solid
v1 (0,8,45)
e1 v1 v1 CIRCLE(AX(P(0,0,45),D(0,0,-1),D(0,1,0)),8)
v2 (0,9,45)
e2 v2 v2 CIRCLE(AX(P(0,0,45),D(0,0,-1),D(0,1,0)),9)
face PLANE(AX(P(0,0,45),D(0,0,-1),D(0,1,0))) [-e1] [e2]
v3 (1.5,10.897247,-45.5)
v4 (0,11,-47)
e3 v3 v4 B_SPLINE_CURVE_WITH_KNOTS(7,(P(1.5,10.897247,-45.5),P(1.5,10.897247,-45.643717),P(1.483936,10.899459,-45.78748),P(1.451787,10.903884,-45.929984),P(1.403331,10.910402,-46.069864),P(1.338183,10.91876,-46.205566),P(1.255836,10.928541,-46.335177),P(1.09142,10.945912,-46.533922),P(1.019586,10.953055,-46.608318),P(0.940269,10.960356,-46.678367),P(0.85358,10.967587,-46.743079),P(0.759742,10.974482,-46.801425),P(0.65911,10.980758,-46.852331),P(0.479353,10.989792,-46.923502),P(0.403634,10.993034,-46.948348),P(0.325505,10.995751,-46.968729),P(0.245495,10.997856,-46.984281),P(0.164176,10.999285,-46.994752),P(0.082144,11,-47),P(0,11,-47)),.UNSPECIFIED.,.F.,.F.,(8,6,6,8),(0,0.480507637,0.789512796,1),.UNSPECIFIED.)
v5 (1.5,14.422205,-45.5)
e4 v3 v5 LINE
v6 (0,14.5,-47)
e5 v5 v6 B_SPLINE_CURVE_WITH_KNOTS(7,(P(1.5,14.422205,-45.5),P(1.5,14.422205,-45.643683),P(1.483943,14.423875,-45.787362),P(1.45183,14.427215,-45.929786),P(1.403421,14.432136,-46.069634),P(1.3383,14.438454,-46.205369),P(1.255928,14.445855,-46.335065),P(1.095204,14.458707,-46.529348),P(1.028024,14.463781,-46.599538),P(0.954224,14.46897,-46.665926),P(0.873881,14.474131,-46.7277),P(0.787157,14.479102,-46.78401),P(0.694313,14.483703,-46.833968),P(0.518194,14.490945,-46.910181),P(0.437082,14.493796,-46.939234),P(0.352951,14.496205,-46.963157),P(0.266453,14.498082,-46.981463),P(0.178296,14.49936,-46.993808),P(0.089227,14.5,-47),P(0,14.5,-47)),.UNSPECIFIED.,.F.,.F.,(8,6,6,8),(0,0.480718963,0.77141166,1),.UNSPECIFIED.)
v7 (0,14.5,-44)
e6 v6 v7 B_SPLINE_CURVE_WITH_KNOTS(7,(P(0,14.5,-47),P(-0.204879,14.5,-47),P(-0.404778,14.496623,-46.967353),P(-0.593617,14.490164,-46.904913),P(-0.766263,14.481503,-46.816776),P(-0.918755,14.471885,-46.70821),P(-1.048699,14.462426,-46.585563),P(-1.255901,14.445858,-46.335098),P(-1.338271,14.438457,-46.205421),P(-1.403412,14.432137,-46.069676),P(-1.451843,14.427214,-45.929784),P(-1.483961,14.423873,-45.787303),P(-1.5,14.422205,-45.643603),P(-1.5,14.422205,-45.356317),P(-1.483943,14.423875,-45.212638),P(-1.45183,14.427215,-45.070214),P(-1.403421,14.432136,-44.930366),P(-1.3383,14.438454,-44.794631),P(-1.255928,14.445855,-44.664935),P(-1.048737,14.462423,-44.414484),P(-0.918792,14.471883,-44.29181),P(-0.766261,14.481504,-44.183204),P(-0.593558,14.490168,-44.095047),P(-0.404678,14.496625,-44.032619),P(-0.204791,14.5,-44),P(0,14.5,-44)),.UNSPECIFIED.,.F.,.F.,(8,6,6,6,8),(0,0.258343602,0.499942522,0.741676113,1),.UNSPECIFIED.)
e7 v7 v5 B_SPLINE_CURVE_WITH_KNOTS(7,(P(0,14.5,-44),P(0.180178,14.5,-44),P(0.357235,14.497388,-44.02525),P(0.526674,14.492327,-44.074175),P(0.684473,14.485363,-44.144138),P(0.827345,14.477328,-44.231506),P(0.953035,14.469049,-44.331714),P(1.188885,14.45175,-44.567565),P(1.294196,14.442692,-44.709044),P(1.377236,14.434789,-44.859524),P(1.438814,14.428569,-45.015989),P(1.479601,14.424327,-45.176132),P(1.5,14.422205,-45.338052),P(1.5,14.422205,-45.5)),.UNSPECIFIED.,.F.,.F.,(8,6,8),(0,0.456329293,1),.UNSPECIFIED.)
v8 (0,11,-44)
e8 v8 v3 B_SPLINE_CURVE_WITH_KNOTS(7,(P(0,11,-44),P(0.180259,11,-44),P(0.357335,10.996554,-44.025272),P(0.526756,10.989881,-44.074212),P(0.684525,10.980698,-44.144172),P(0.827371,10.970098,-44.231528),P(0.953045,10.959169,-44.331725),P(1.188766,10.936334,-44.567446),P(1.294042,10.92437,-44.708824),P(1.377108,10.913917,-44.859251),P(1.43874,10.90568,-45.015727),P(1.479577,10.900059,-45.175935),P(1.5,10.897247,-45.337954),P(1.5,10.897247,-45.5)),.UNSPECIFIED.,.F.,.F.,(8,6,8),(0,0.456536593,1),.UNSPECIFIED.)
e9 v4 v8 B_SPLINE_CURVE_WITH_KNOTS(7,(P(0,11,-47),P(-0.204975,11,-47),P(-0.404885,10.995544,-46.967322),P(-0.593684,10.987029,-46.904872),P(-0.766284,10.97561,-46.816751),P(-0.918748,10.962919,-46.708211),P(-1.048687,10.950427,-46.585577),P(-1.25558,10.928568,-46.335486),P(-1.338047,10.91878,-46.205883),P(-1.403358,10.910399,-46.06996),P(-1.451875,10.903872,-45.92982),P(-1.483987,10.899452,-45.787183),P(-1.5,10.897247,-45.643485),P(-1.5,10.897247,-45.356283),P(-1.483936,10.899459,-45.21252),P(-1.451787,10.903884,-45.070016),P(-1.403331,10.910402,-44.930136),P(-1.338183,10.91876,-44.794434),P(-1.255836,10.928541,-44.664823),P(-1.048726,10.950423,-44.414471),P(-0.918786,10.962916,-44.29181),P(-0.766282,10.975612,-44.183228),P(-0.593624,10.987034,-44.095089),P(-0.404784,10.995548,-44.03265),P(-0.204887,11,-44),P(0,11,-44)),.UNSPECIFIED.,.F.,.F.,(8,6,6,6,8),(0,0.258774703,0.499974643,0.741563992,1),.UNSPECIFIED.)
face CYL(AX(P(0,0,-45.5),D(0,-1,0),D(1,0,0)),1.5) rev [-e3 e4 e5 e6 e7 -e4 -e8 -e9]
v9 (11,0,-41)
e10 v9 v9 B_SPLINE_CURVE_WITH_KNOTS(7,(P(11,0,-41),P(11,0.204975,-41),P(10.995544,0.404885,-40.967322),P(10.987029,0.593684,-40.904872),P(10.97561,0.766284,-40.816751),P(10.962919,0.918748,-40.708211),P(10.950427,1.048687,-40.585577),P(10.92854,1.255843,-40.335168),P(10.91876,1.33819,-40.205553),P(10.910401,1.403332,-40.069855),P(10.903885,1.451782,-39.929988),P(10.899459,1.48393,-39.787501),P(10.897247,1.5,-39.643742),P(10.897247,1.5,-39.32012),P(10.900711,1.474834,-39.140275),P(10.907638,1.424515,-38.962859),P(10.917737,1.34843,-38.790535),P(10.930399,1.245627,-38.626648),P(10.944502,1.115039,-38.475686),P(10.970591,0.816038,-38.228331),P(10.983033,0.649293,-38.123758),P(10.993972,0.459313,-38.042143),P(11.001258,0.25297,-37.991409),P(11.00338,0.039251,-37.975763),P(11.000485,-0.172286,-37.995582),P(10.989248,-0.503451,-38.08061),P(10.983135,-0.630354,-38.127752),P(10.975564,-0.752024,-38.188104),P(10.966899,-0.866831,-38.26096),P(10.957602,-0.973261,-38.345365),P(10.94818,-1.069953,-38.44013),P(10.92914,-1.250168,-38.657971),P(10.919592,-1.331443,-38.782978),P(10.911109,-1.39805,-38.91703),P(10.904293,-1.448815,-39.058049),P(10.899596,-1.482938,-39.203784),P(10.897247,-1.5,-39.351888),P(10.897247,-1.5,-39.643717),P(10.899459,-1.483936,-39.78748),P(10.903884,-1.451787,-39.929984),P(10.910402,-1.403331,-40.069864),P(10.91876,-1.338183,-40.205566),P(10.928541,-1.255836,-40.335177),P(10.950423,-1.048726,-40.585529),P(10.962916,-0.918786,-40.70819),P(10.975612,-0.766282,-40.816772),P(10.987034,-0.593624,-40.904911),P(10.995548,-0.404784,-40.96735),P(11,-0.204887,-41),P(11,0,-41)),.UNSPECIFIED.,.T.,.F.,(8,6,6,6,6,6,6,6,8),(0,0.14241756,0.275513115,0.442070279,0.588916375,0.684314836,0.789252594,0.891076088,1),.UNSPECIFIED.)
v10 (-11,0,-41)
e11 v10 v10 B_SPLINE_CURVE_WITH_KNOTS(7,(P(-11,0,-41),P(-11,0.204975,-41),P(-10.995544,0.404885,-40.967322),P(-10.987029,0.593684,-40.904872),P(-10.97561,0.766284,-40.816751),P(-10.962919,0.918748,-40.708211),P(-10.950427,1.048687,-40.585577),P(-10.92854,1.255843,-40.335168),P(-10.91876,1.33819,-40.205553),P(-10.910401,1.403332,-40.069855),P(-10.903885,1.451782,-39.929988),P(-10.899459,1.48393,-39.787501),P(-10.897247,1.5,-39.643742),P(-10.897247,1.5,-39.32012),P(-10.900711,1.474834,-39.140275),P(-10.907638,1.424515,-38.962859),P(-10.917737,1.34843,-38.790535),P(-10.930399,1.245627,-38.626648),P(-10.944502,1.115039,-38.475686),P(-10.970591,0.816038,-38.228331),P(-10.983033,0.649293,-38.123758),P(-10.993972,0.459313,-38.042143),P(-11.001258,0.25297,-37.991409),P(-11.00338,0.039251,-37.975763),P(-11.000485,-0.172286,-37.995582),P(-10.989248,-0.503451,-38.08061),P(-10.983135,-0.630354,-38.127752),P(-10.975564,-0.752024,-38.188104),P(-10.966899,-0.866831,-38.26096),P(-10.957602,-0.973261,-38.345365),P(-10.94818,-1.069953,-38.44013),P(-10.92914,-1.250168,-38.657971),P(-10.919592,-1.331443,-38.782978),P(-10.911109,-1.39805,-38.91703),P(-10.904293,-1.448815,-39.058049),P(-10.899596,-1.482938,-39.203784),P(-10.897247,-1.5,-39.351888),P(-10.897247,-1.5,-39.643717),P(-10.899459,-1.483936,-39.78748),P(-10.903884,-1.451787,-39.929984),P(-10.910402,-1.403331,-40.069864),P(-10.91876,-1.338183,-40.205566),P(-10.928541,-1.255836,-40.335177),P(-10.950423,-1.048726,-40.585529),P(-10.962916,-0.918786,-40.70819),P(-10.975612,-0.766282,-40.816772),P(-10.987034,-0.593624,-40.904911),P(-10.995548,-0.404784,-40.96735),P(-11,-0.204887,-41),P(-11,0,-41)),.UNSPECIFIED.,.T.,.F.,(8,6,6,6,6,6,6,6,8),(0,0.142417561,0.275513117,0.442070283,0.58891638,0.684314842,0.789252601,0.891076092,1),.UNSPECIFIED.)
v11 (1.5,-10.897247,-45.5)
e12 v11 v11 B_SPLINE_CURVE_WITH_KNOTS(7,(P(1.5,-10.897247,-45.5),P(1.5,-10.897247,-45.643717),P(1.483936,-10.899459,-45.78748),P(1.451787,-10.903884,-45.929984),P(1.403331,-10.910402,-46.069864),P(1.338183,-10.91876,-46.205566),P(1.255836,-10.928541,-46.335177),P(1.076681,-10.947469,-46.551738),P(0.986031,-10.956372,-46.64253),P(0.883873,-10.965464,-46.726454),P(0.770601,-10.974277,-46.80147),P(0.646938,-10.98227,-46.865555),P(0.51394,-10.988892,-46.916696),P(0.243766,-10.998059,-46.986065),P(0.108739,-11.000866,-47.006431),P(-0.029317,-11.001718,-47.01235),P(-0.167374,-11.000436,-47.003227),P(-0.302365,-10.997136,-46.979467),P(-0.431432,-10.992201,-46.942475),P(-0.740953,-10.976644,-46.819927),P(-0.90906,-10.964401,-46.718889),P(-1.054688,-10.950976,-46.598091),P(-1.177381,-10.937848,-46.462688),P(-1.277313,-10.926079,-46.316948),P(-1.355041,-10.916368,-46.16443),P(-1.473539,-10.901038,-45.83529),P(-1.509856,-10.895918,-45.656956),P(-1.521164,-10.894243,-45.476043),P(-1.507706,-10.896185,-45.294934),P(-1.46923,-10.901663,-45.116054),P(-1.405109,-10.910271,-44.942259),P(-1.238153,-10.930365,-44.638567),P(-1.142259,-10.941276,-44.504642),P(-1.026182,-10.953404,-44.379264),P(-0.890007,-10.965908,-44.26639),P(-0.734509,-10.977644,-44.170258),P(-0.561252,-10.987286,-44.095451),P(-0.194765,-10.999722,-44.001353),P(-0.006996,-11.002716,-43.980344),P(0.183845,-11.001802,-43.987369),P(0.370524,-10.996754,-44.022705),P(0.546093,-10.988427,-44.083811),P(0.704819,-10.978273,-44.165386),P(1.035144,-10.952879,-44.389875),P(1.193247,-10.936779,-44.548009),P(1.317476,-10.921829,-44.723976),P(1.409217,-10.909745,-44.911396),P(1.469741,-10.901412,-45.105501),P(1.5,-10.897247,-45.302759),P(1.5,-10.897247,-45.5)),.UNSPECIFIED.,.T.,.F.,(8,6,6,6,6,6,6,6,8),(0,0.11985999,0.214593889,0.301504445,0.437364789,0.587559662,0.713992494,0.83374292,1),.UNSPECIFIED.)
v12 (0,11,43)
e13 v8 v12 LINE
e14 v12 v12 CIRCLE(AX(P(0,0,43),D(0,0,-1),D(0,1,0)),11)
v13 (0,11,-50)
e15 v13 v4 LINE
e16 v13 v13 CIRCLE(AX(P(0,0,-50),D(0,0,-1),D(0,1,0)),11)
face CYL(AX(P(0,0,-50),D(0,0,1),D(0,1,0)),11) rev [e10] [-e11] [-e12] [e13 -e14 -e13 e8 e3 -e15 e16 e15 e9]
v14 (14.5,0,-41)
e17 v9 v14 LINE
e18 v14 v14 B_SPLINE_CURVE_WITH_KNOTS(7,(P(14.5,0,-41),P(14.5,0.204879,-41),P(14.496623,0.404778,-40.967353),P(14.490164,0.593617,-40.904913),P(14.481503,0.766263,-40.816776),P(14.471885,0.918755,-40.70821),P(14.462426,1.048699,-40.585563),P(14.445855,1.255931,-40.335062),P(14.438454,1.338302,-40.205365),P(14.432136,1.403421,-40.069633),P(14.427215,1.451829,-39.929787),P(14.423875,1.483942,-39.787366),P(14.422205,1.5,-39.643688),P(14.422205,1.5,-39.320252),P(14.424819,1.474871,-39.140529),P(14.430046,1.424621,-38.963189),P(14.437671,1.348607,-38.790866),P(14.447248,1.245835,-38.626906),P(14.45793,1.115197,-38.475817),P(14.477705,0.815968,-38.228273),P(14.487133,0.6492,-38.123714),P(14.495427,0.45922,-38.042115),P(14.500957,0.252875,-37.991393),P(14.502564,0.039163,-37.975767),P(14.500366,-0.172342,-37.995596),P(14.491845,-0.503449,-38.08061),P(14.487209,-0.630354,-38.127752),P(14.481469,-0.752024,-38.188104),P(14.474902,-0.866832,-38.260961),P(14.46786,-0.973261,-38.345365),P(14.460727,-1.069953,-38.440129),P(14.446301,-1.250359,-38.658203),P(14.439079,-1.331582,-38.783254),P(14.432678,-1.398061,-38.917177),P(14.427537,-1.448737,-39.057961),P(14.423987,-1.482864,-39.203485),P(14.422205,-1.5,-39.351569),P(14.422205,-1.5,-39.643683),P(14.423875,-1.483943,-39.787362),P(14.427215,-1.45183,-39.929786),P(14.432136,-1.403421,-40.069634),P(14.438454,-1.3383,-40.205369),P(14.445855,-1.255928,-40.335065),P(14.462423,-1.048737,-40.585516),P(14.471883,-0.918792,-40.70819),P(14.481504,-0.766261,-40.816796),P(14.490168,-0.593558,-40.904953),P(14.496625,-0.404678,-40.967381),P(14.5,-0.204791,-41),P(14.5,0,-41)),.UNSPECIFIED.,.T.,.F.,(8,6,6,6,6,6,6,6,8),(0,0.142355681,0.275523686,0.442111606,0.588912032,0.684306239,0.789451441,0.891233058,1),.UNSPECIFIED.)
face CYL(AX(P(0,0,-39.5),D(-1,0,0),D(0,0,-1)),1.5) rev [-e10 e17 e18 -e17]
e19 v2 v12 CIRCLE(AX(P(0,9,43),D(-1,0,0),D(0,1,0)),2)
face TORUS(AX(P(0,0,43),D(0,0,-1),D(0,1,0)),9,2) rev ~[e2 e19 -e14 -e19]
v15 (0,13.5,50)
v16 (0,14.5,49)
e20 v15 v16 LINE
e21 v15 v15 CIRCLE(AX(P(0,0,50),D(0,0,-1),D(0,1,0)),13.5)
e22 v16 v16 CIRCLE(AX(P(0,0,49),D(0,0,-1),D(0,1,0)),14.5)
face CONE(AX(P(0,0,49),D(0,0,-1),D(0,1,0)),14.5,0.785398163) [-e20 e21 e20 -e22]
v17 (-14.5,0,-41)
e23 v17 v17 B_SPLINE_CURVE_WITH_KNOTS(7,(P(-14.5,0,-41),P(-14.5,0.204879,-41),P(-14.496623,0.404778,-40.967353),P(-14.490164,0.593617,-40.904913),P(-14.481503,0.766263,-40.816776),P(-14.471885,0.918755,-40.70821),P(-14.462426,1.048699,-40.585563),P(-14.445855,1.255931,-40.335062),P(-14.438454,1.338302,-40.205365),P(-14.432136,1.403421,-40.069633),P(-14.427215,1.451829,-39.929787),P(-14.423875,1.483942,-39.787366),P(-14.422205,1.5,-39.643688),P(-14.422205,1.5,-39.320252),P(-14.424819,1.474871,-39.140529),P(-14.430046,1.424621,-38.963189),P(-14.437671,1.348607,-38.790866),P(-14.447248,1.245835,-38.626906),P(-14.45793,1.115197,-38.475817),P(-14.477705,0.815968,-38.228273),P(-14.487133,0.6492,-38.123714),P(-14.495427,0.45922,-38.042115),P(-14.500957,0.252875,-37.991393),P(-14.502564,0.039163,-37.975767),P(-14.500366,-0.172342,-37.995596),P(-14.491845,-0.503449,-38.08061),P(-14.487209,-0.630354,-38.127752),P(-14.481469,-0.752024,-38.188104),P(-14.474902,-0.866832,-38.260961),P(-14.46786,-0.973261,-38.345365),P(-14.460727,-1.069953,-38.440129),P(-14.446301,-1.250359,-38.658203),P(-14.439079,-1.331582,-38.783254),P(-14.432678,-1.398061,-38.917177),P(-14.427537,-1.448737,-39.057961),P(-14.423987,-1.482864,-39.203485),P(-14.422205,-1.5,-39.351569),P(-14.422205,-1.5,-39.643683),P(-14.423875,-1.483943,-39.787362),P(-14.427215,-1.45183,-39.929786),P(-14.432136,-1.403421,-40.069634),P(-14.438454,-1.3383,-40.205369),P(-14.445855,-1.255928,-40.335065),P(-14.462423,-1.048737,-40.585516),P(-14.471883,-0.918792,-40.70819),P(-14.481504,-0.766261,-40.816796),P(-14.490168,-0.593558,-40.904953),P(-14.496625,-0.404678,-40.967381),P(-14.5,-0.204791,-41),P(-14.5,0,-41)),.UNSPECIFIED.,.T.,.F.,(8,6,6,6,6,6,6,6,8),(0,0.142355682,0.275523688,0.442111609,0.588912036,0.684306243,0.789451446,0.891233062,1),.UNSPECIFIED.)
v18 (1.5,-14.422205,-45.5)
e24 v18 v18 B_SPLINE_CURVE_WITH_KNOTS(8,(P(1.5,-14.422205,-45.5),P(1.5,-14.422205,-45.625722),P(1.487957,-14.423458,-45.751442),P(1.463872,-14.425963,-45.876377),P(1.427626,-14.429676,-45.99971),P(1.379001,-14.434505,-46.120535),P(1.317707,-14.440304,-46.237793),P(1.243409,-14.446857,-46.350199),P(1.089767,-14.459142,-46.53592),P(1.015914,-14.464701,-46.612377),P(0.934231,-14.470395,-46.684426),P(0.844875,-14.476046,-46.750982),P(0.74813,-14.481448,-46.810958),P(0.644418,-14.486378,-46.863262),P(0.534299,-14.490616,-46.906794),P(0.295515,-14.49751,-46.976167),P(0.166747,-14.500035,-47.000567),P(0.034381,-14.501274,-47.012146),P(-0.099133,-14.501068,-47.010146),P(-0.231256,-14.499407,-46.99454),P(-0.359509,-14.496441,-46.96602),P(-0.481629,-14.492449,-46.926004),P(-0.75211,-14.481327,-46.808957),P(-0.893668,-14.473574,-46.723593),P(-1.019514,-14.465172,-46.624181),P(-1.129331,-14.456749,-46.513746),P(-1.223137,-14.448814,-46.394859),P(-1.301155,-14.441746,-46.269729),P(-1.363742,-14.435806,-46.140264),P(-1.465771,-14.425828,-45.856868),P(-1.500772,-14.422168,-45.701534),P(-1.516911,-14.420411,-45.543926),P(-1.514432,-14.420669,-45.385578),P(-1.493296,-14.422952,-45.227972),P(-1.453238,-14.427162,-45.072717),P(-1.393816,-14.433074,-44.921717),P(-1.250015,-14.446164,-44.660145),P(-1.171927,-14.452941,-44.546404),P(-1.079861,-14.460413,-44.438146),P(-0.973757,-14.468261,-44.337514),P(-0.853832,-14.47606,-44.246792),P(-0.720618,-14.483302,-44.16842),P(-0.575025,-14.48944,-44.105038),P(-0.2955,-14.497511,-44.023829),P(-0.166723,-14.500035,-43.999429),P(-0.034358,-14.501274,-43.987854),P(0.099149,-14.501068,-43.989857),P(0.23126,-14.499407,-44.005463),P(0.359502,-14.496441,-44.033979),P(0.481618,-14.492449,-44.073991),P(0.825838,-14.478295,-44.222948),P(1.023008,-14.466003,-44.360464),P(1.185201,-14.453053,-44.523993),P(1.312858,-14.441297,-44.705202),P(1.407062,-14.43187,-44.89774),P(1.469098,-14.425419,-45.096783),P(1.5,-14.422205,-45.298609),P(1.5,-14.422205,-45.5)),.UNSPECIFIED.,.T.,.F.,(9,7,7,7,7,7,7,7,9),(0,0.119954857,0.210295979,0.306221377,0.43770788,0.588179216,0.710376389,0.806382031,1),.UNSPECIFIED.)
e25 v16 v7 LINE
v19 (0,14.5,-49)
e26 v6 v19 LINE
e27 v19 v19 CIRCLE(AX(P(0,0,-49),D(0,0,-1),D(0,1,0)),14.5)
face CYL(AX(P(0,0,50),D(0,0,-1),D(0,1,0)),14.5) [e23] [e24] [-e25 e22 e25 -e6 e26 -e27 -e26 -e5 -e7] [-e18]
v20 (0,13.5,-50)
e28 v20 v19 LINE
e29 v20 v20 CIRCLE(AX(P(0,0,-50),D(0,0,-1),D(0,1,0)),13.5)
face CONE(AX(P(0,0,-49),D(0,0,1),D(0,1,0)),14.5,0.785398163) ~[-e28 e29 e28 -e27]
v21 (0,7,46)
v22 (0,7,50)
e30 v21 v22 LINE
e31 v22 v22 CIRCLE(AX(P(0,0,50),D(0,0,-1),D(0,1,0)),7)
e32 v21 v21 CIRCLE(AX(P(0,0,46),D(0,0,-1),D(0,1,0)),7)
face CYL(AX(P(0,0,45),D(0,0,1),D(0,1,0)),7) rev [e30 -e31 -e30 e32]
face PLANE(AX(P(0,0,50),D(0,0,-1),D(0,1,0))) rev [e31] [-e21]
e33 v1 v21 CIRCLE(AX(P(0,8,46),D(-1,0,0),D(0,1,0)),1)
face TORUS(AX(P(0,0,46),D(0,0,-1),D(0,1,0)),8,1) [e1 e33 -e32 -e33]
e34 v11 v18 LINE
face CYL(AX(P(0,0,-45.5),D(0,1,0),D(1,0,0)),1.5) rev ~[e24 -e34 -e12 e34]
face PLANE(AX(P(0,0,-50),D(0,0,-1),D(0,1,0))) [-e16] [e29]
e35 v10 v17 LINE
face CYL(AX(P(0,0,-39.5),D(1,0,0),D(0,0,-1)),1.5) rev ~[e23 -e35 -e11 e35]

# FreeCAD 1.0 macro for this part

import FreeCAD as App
import Part
import Sketcher

V = App.Vector


def edges_at(feature, points):
    """Names of the edges that pass closest to the given points."""
    edges = feature.Shape.Edges
    near = lambda p: min(range(len(edges)), key=lambda i: edges[i].distToShape(Part.Vertex(*p))[0])
    return sorted({f"Edge{near(p) + 1}" for p in points})


def add_polygon(sketch, points):
    """Adds a closed chain of lines whose ends are joined by coincident constraints."""
    first, n = sketch.GeometryCount, len(points)
    for a, b in zip(points, points[1:] + points[:1]):
        sketch.addGeometry(Part.LineSegment(App.Vector(*a, 0), App.Vector(*b, 0)), False)
    for i in range(n):
        sketch.addConstraint(Sketcher.Constraint("Coincident", first + i, 2, first + (i + 1) % n, 1))

doc = App.newDocument("Part")
body = doc.addObject("PartDesign::Body", "Body")

sketch1 = body.newObject("Sketcher::SketchObject", "Sketch")
sketch1.AttachmentSupport = (doc.getObject("YZ_Plane"), [""])
sketch1.MapMode = "FlatFace"
add_polygon(sketch1, [(7, 45), (11, 45), (11, -50), (14.5, -50), (14.5, 50), (7, 50)])
sketch1.addConstraint([
    Sketcher.Constraint("Horizontal", 0),
    Sketcher.Constraint("Vertical", 1),
    Sketcher.Constraint("Horizontal", 2),
    Sketcher.Constraint("Vertical", 3),
    Sketcher.Constraint("Horizontal", 4),
    Sketcher.Constraint("Vertical", 5),
    Sketcher.Constraint("DistanceX", 0, 1, 0, 2, 4.0),
    Sketcher.Constraint("DistanceY", 1, 2, 1, 1, 95.0),
    Sketcher.Constraint("DistanceY", 3, 1, 3, 2, 100.0),
    Sketcher.Constraint("DistanceX", 2, 1, 2, 2, 3.5),
    Sketcher.Constraint("DistanceX", -1, 1, 0, 2, 11.0),
    Sketcher.Constraint("DistanceY", -1, 1, 0, 2, 45.0),
])
revolution = body.newObject("PartDesign::Revolution", "Revolution")
revolution.Profile = sketch1
revolution.ReferenceAxis = (sketch1, ["V_Axis"])
revolution.Angle = 360

sketch2 = body.newObject("Sketcher::SketchObject", "Sketch001")
sketch2.AttachmentSupport = (doc.getObject("YZ_Plane"), [""])
sketch2.MapMode = "FlatFace"
sketch2.addGeometry(Part.Circle(V(0, -39.5, 0), V(0, 0, 1), 1.5), False)
sketch2.addConstraint([
    Sketcher.Constraint("PointOnObject", 0, 3, -2),
    Sketcher.Constraint("Diameter", 0, 3.0),
    Sketcher.Constraint("DistanceY", 0, 3, -1, 1, 39.5),
])
pocket1 = body.newObject("PartDesign::Pocket", "Pocket")
pocket1.Profile = sketch2
pocket1.Type = "ThroughAll"
pocket1.Midplane = True

sketch3 = body.newObject("Sketcher::SketchObject", "Sketch002")
sketch3.AttachmentSupport = (doc.getObject("XZ_Plane"), [""])
sketch3.MapMode = "FlatFace"
sketch3.addGeometry(Part.Circle(V(0, -45.5, 0), V(0, 0, 1), 1.5), False)
sketch3.addConstraint([
    Sketcher.Constraint("PointOnObject", 0, 3, -2),
    Sketcher.Constraint("Diameter", 0, 3.0),
    Sketcher.Constraint("DistanceY", 0, 3, -1, 1, 45.5),
])
pocket2 = body.newObject("PartDesign::Pocket", "Pocket001")
pocket2.Profile = sketch3
pocket2.Type = "ThroughAll"
pocket2.Midplane = True
doc.recompute()

fillet = body.newObject("PartDesign::Fillet", "Fillet")
fillet.Base = (pocket2, edges_at(pocket2, [(0, -11, 45)]))
fillet.Radius = 2
doc.recompute()

fillet2 = body.newObject("PartDesign::Fillet", "Fillet001")
fillet2.Base = (fillet, edges_at(fillet, [(0, -7, 45)]))
fillet2.Radius = 1
doc.recompute()

chamfer = body.newObject("PartDesign::Chamfer", "Chamfer")
chamfer.Base = (fillet2, edges_at(fillet2, [(0, -14.5, 50), (0, -14.5, -50)]))
chamfer.Size = 1

doc.recompute()
